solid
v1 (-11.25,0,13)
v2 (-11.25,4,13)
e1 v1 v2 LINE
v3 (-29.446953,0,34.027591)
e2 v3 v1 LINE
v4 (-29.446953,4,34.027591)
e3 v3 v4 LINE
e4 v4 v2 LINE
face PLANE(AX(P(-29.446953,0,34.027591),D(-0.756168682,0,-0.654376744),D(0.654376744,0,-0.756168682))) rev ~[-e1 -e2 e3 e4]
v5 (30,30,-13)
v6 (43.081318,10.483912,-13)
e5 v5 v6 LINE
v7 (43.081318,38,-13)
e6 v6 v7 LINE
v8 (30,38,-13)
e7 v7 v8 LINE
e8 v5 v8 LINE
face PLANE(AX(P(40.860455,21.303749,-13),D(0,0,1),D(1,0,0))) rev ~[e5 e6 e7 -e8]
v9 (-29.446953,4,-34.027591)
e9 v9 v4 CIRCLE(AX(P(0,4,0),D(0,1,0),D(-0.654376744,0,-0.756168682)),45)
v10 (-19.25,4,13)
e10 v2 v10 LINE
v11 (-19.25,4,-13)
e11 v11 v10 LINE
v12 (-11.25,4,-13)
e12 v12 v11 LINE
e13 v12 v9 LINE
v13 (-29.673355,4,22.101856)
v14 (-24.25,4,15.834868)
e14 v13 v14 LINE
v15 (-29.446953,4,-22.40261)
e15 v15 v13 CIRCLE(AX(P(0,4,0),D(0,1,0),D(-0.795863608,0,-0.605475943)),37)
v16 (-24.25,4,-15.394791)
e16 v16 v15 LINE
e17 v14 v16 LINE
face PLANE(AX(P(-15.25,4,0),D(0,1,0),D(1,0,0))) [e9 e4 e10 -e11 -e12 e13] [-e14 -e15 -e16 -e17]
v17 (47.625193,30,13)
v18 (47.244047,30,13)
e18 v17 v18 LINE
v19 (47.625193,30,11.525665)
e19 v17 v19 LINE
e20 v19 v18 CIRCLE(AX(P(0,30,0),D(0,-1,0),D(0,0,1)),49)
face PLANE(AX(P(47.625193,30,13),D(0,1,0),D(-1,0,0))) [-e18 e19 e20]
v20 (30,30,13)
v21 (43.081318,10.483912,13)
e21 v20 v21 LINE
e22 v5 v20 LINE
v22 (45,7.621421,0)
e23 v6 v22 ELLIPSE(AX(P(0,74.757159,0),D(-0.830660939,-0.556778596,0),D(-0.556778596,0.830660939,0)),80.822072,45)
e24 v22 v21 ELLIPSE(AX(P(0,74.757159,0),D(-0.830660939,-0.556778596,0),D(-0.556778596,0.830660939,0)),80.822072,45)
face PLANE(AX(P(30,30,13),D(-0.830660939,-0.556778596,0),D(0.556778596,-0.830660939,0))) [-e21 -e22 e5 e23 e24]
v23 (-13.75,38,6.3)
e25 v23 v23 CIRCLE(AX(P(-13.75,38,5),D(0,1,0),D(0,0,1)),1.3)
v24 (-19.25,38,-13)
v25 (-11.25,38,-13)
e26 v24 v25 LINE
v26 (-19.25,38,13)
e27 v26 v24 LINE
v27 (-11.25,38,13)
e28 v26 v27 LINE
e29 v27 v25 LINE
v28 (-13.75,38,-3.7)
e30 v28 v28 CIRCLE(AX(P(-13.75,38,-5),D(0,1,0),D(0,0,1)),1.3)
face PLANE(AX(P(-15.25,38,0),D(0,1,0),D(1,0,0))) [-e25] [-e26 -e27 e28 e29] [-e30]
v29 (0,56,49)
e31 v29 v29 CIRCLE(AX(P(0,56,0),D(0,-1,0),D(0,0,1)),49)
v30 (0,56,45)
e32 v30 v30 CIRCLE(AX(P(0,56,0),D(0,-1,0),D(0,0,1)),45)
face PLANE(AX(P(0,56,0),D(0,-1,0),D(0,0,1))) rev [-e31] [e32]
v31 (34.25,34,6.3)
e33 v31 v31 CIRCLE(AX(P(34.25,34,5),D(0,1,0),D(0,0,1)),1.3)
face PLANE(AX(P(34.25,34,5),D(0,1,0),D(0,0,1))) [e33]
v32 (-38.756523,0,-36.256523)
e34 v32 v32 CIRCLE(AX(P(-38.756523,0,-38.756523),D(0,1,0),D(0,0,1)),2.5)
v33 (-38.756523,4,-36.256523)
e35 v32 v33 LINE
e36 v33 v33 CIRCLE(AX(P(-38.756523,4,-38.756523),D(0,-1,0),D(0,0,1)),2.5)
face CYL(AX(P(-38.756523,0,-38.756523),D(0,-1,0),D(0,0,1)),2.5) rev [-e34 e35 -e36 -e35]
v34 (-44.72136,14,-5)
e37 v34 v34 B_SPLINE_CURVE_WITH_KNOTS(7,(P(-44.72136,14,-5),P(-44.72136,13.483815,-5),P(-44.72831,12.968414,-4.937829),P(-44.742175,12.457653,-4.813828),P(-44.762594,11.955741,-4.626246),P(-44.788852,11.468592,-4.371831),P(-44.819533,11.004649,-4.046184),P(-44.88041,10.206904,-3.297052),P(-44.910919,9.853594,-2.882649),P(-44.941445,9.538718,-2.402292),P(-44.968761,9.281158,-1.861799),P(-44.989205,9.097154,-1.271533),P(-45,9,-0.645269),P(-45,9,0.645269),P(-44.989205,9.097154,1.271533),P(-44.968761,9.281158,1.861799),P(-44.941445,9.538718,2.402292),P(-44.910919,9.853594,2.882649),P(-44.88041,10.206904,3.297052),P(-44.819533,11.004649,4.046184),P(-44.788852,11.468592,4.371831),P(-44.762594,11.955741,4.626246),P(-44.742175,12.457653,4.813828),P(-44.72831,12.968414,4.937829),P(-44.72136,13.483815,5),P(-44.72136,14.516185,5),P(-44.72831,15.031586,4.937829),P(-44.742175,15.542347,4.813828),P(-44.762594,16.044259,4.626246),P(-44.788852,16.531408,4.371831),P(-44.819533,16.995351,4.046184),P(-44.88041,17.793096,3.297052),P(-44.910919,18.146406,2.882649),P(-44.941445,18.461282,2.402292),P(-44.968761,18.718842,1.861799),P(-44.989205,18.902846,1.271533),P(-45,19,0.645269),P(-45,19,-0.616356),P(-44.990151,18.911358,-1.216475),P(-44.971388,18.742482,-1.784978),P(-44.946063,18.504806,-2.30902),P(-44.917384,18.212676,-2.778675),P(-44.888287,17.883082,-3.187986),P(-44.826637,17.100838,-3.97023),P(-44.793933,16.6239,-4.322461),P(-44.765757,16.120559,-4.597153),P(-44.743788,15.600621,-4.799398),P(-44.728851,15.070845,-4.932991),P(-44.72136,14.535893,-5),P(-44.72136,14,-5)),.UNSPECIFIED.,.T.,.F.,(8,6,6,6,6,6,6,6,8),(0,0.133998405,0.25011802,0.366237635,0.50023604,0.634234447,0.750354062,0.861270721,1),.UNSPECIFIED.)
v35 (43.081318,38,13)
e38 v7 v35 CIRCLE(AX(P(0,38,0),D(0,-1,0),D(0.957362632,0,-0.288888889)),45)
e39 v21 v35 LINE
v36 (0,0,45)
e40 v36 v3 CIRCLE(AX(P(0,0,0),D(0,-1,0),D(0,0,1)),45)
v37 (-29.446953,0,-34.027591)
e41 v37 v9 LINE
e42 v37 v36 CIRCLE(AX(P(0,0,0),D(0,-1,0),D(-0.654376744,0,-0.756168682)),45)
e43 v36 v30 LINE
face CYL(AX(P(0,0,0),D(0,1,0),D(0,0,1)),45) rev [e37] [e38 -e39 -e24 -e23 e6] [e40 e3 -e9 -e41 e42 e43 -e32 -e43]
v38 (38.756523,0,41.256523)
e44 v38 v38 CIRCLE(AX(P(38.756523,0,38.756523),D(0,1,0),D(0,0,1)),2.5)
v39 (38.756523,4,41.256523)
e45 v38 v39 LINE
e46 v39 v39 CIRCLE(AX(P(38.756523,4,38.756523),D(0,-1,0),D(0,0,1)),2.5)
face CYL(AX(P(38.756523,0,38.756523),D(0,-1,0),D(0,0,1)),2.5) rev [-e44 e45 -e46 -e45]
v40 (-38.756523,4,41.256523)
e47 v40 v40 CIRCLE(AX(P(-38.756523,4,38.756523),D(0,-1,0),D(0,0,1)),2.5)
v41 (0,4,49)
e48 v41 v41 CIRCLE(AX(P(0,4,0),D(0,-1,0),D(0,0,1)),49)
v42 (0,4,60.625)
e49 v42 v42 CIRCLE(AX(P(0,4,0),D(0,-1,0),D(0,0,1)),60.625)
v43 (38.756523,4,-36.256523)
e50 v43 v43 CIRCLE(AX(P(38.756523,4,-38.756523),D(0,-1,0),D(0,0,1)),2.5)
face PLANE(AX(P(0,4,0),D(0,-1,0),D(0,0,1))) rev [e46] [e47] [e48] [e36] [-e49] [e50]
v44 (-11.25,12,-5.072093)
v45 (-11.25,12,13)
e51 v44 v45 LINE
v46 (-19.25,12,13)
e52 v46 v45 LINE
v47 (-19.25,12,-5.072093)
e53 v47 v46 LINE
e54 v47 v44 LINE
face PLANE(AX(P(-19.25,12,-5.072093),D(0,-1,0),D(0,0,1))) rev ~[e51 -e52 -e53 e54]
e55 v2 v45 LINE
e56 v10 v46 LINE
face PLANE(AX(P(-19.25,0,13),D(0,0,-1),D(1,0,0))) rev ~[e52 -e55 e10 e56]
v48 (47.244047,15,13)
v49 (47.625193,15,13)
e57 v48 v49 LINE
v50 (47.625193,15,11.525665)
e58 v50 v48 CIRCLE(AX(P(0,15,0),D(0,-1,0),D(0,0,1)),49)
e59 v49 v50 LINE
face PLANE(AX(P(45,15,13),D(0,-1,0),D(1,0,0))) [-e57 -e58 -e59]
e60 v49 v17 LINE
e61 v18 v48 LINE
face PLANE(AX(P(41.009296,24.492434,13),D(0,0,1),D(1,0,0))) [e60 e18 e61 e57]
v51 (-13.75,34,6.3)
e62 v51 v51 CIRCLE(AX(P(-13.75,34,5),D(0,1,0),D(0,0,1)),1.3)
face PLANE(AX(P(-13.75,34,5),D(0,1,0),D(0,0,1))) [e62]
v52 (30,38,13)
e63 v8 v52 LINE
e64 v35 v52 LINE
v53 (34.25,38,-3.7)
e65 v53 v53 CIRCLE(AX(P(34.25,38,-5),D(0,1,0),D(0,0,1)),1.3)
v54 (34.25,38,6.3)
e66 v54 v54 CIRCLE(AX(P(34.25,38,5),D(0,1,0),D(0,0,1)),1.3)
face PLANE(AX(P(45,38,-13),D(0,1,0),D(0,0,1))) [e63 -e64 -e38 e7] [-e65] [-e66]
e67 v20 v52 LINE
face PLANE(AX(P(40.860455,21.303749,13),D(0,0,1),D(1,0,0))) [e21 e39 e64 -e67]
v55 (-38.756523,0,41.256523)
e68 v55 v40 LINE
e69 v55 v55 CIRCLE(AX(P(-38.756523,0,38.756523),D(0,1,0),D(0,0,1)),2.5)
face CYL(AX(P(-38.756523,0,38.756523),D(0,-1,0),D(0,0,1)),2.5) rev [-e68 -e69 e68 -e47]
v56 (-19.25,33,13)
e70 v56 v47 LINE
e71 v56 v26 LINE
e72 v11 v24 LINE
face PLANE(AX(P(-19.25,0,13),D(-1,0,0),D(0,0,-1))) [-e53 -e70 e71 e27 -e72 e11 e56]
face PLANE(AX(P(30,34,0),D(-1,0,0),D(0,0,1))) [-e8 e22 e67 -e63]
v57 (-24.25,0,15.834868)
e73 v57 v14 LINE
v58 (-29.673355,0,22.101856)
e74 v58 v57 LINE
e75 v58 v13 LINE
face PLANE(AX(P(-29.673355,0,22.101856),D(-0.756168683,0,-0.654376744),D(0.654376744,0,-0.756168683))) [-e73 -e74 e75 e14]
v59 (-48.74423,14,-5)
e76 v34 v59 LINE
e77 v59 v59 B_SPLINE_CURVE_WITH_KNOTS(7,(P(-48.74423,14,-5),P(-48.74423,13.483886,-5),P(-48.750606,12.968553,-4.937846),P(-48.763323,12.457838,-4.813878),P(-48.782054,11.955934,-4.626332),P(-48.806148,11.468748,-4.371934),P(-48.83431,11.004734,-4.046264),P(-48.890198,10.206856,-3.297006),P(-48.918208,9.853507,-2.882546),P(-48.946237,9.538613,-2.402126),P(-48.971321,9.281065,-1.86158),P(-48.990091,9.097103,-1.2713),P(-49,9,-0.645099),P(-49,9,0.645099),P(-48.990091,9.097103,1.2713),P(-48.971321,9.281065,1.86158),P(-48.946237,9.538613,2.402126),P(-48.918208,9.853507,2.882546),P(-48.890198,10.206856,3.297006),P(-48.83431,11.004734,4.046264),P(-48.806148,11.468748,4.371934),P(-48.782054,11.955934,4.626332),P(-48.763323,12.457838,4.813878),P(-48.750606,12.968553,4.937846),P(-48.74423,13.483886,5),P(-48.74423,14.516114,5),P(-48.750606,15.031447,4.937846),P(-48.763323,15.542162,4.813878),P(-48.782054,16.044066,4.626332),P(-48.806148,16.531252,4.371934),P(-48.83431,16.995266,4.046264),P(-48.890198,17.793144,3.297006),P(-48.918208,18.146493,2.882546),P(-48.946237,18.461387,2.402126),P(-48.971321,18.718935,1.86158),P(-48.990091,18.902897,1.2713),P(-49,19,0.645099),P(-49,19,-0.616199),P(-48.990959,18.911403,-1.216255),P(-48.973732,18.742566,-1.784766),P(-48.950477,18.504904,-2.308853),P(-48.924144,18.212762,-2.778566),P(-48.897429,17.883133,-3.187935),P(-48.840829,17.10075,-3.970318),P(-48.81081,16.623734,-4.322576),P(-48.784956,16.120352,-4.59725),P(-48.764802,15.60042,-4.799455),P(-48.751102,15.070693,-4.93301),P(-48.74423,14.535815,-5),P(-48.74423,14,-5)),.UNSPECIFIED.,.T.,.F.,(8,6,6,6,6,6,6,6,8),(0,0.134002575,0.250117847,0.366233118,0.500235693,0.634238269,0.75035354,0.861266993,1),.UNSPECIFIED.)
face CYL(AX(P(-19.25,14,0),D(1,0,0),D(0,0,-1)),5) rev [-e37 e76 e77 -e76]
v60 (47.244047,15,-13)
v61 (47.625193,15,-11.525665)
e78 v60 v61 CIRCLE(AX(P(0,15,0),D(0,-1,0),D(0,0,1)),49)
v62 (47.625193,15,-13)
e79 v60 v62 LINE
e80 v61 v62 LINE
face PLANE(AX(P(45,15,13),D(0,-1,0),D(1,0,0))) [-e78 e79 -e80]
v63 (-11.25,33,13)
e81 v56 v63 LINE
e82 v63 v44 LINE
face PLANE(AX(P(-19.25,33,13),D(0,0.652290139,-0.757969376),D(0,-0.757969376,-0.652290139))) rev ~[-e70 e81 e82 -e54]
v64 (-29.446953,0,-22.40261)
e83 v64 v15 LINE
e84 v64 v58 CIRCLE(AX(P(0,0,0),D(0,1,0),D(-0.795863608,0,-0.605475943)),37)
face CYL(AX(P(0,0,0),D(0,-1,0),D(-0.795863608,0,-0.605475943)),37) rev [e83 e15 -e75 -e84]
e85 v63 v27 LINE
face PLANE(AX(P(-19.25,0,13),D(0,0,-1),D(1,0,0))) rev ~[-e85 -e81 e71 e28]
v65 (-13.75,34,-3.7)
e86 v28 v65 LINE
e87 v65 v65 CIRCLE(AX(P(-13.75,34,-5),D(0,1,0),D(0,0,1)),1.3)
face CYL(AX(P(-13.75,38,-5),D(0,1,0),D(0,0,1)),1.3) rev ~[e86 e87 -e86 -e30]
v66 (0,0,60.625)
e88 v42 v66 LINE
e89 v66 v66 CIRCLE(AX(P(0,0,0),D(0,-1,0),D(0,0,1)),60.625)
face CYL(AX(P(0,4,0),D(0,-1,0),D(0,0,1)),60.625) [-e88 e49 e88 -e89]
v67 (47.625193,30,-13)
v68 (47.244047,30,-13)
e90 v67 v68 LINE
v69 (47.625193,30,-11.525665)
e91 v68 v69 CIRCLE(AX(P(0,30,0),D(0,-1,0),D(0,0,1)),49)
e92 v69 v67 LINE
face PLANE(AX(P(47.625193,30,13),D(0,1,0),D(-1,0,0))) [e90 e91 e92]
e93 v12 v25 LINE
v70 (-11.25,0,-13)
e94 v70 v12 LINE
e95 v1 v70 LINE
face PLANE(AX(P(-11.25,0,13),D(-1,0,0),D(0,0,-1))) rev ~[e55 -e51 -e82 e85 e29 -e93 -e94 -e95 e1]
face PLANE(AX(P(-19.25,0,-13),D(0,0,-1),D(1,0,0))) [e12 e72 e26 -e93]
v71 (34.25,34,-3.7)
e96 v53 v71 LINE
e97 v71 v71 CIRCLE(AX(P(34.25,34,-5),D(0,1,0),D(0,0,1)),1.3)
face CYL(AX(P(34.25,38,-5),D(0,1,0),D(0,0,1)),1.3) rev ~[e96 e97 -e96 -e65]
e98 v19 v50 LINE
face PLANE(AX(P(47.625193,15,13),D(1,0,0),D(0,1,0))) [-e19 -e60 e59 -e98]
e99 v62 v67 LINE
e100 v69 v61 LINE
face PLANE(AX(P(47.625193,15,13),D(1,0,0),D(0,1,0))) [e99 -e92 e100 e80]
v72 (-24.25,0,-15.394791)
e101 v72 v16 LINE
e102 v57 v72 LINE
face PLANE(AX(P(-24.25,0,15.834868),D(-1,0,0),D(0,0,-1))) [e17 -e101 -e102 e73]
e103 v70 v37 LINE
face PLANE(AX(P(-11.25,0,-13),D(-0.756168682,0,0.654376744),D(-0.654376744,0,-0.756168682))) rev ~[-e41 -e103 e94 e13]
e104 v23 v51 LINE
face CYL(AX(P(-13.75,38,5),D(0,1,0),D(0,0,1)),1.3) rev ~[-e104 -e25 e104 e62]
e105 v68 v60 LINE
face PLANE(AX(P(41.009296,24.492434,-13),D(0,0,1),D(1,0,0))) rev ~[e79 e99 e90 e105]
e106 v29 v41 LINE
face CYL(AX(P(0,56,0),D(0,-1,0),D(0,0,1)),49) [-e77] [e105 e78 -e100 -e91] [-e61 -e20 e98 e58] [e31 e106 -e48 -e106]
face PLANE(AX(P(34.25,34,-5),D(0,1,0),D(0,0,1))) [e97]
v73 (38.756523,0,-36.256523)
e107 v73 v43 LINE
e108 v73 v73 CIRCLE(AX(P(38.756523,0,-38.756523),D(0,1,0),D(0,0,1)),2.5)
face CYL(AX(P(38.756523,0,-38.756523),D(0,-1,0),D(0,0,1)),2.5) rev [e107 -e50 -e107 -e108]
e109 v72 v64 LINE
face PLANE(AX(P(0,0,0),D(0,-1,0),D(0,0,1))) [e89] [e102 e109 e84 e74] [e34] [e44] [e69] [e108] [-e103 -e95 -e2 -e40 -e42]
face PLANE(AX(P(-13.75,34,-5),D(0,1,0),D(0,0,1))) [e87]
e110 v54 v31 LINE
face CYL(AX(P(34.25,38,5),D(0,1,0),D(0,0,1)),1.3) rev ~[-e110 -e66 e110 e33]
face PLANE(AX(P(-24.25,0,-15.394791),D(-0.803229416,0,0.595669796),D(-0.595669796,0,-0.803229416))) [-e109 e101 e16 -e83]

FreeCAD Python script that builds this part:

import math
import FreeCAD as App
import Part
import Sketcher
Q = App.Units.Quantity

doc = App.newDocument("Part")
params = doc.addObject("Spreadsheet::Sheet", "Params")
for row, (alias, value) in enumerate([
    ("sketch1_width", "4 mm"),
    ("sketch1_height", "52 mm"),
    ("revolution_angle", "360 deg"),
    ("sketch2_width", "8 mm"),
    ("sketch2_height", "26 mm"),
    ("pad1_length", "15 mm"),
    ("sketch3_radius", "45 mm"),
    ("sketch3_radius2", "37 mm"),
    ("sketch3_height", "26 mm"),
    ("pad2_length", "4 mm"),
    ("sketch4_width", "8 mm"),
    ("sketch4_height", "26 mm"),
    ("pad3_length", "38 mm"),
    ("sketch5_diameter", "10 mm"),
    ("pocket1_length", "44 mm"),
    ("sketch6_diameter", "5 mm"),
    ("pocket2_length", "44 mm"),
    ("sketch7_diameter", "2.6 mm"),
    ("pocket3_length", "4 mm"),
    ("pocket4_length", "10 mm"),
    ("pad4_length", "26 mm"),
    ("sketch10_radius", "45 mm"),
    ("pocket5_length", "30 mm"),
    ("sketch11_height", "15 mm"),
    ("pad5_length", "26 mm"),
    ("pad6_length", "26 mm"),
    ("sketch13_width", "21 mm"),
    ("pocket6_length", "26 mm"),
], start=1):
    params.set(f"A{row}", alias)
    params.set(f"B{row}", "=" + value)
    params.setAlias(f"B{row}", alias)

body = doc.addObject("PartDesign::Body", "Body")

# Sketch on XY plane
sketch1 = doc.addObject("Sketcher::SketchObject", "Sketch")
body.addObject(sketch1)
sketch1.AttachmentSupport = (doc.XY_Plane, [""])
sketch1.MapMode = "FlatFace"
sketch1.addGeometry(Part.LineSegment(App.Vector(60.6, 4, 0), App.Vector(49, 4, 0)), False)
sketch1.addGeometry(Part.LineSegment(App.Vector(49, 4, 0), App.Vector(49, 56, 0)), False)
sketch1.addGeometry(Part.LineSegment(App.Vector(49, 56, 0), App.Vector(45, 56, 0)), False)
sketch1.addGeometry(Part.LineSegment(App.Vector(45, 56, 0), App.Vector(45, 0, 0)), False)
sketch1.addGeometry(Part.LineSegment(App.Vector(45, 0, 0), App.Vector(60.6, 0, 0)), False)
sketch1.addGeometry(Part.LineSegment(App.Vector(60.6, 0, 0), App.Vector(60.6, 4, 0)), False)
sketch1.addConstraint(Sketcher.Constraint("Coincident", 0, 2, 1, 1))
sketch1.addConstraint(Sketcher.Constraint("Coincident", 1, 2, 2, 1))
sketch1.addConstraint(Sketcher.Constraint("Coincident", 2, 2, 3, 1))
sketch1.addConstraint(Sketcher.Constraint("Coincident", 3, 2, 4, 1))
sketch1.addConstraint(Sketcher.Constraint("Coincident", 4, 2, 5, 1))
sketch1.addConstraint(Sketcher.Constraint("Coincident", 5, 2, 0, 1))
sketch1.addConstraint(Sketcher.Constraint("Horizontal", 0))
sketch1.addConstraint(Sketcher.Constraint("Vertical", 1))
sketch1.addConstraint(Sketcher.Constraint("Horizontal", 2))
sketch1.addConstraint(Sketcher.Constraint("Vertical", 3))
sketch1.addConstraint(Sketcher.Constraint("Horizontal", 4))
sketch1.addConstraint(Sketcher.Constraint("Vertical", 5))
sketch1.addConstraint(Sketcher.Constraint("PointOnObject", 3, 2, -1))
sketch1.addConstraint(Sketcher.Constraint("Equal", 2, 5))
sketch1.addConstraint(Sketcher.Constraint("DistanceX", 2, 2, 2, 1, Q("4 mm")))
sketch1.addConstraint(Sketcher.Constraint("DistanceY", 1, 1, 1, 2, Q("52 mm")))
sketch1.addConstraint(Sketcher.Constraint("DistanceX", -1, 1, 0, 2, Q("49 mm")))
sketch1.addConstraint(Sketcher.Constraint("DistanceX", 0, 2, 0, 1, Q("11.625 mm")))
sketch1.setExpression("Constraints[14]", "Params.sketch1_width")
sketch1.setExpression("Constraints[15]", "Params.sketch1_height")
revolution = doc.addObject("PartDesign::Revolution", "Revolution")
body.addObject(revolution)
revolution.Profile = sketch1
revolution.ReferenceAxis = (sketch1, ["V_Axis"])
revolution.setExpression("Angle", "Params.revolution_angle")

# Sketch on YZ plane
sketch2 = doc.addObject("Sketcher::SketchObject", "Sketch001")
body.addObject(sketch2)
sketch2.AttachmentSupport = (doc.YZ_Plane, [""])
sketch2.MapMode = "FlatFace"
sketch2.AttachmentOffset = App.Placement(App.Vector(0, 0, 45), App.Rotation())
sketch2.addGeometry(Part.LineSegment(App.Vector(38, -13, 0), App.Vector(30, -13, 0)), False)
sketch2.addGeometry(Part.LineSegment(App.Vector(30, -13, 0), App.Vector(30, 13, 0)), False)
sketch2.addGeometry(Part.LineSegment(App.Vector(30, 13, 0), App.Vector(38, 13, 0)), False)
sketch2.addGeometry(Part.LineSegment(App.Vector(38, 13, 0), App.Vector(38, -13, 0)), False)
sketch2.addConstraint(Sketcher.Constraint("Coincident", 0, 2, 1, 1))
sketch2.addConstraint(Sketcher.Constraint("Coincident", 1, 2, 2, 1))
sketch2.addConstraint(Sketcher.Constraint("Coincident", 2, 2, 3, 1))
sketch2.addConstraint(Sketcher.Constraint("Coincident", 3, 2, 0, 1))
sketch2.addConstraint(Sketcher.Constraint("Horizontal", 0))
sketch2.addConstraint(Sketcher.Constraint("Vertical", 1))
sketch2.addConstraint(Sketcher.Constraint("Horizontal", 2))
sketch2.addConstraint(Sketcher.Constraint("Vertical", 3))
sketch2.addConstraint(Sketcher.Constraint("DistanceX", 0, 2, 0, 1, Q("8 mm")))
sketch2.addConstraint(Sketcher.Constraint("DistanceY", 1, 1, 1, 2, Q("26 mm")))
sketch2.addConstraint(Sketcher.Constraint("DistanceX", -1, 1, 0, 2, Q("30 mm")))
sketch2.addConstraint(Sketcher.Constraint("DistanceY", 0, 2, -1, 1, Q("13 mm")))
sketch2.setExpression("Constraints[8]", "Params.sketch2_width")
sketch2.setExpression("Constraints[9]", "Params.sketch2_height")
pad1 = doc.addObject("PartDesign::Pad", "Pad")
body.addObject(pad1)
pad1.Profile = sketch2
pad1.setExpression("Length", "Params.pad1_length")
pad1.Reversed = True

# Sketch on XZ plane
sketch3 = doc.addObject("Sketcher::SketchObject", "Sketch002")
body.addObject(sketch3)
sketch3.AttachmentSupport = (doc.XZ_Plane, [""])
sketch3.MapMode = "FlatFace"
sketch3.addGeometry(Part.LineSegment(App.Vector(-11, 13, 0), App.Vector(-11, -13, 0)), False)
sketch3.addGeometry(Part.LineSegment(App.Vector(-11, -13, 0), App.Vector(-29, -34, 0)), False)
sketch3.addGeometry(Part.ArcOfCircle(Part.Circle(App.Vector(0, 0, 0), App.Vector(0, 0, 1), 45), math.radians(131), math.radians(229)), False)
sketch3.addGeometry(Part.LineSegment(App.Vector(-29, 34, 0), App.Vector(-11, 13, 0)), False)
sketch3.addGeometry(Part.ArcOfCircle(Part.Circle(App.Vector(0, 0, 0), App.Vector(0, 0, 1), 37), math.radians(143), math.radians(217)), False)
sketch3.addGeometry(Part.LineSegment(App.Vector(-29, -22, 0), App.Vector(-24, -15, 0)), False)
sketch3.addGeometry(Part.LineSegment(App.Vector(-24, -15, 0), App.Vector(-24, 16, 0)), False)
sketch3.addGeometry(Part.LineSegment(App.Vector(-24, 16, 0), App.Vector(-30, 22, 0)), False)
sketch3.addConstraint(Sketcher.Constraint("Coincident", 0, 2, 1, 1))
sketch3.addConstraint(Sketcher.Constraint("Coincident", 1, 2, 2, 2))
sketch3.addConstraint(Sketcher.Constraint("Coincident", 2, 1, 3, 1))
sketch3.addConstraint(Sketcher.Constraint("Coincident", 3, 2, 0, 1))
sketch3.addConstraint(Sketcher.Constraint("Coincident", 4, 2, 5, 1))
sketch3.addConstraint(Sketcher.Constraint("Coincident", 5, 2, 6, 1))
sketch3.addConstraint(Sketcher.Constraint("Coincident", 6, 2, 7, 1))
sketch3.addConstraint(Sketcher.Constraint("Coincident", 7, 2, 4, 1))
sketch3.addConstraint(Sketcher.Constraint("Vertical", 0))
sketch3.addConstraint(Sketcher.Constraint("Vertical", 6))
sketch3.addConstraint(Sketcher.Constraint("Coincident", 2, 3, -1, 1))
sketch3.addConstraint(Sketcher.Constraint("Coincident", 4, 3, -1, 1))
sketch3.addConstraint(Sketcher.Constraint("Parallel", 3, 7))
sketch3.addConstraint(Sketcher.Constraint("Vertical", 1, 2, 2, 1))
sketch3.addConstraint(Sketcher.Constraint("Vertical", 2, 1, 4, 2))
sketch3.addConstraint(Sketcher.Constraint("Equal", 1, 3))
sketch3.addConstraint(Sketcher.Constraint("Radius", 2, Q("45 mm")))
sketch3.addConstraint(Sketcher.Constraint("Radius", 4, Q("37 mm")))
sketch3.addConstraint(Sketcher.Constraint("DistanceY", 0, 2, 0, 1, Q("26 mm")))
sketch3.addConstraint(Sketcher.Constraint("DistanceX", 5, 2, 0, 2, Q("13 mm")))
sketch3.addConstraint(Sketcher.Constraint("DistanceX", 0, 2, -1, 1, Q("11.25 mm")))
sketch3.addConstraint(Sketcher.Constraint("DistanceY", 6, 1, 6, 2, Q("31.22966 mm")))
sketch3.addConstraint(Sketcher.Constraint("DistanceY", 1, 2, 5, 2, Q("18.6328 mm")))
sketch3.addConstraint(Sketcher.Constraint("DistanceX", 7, 2, 2, 1, Q("0.226401 mm")))
sketch3.setExpression("Constraints[16]", "Params.sketch3_radius")
sketch3.setExpression("Constraints[17]", "Params.sketch3_radius2")
sketch3.setExpression("Constraints[18]", "Params.sketch3_height")
pad2 = doc.addObject("PartDesign::Pad", "Pad001")
body.addObject(pad2)
pad2.Profile = sketch3
pad2.setExpression("Length", "Params.pad2_length")
pad2.Reversed = True

# Sketch on XZ plane
sketch4 = doc.addObject("Sketcher::SketchObject", "Sketch003")
body.addObject(sketch4)
sketch4.AttachmentSupport = (doc.XZ_Plane, [""])
sketch4.MapMode = "FlatFace"
sketch4.addGeometry(Part.LineSegment(App.Vector(-19, -13, 0), App.Vector(-19, 13, 0)), False)
sketch4.addGeometry(Part.LineSegment(App.Vector(-19, 13, 0), App.Vector(-11, 13, 0)), False)
sketch4.addGeometry(Part.LineSegment(App.Vector(-11, 13, 0), App.Vector(-11, -13, 0)), False)
sketch4.addGeometry(Part.LineSegment(App.Vector(-11, -13, 0), App.Vector(-19, -13, 0)), False)
sketch4.addConstraint(Sketcher.Constraint("Coincident", 0, 2, 1, 1))
sketch4.addConstraint(Sketcher.Constraint("Coincident", 1, 2, 2, 1))
sketch4.addConstraint(Sketcher.Constraint("Coincident", 2, 2, 3, 1))
sketch4.addConstraint(Sketcher.Constraint("Coincident", 3, 2, 0, 1))
sketch4.addConstraint(Sketcher.Constraint("Vertical", 0))
sketch4.addConstraint(Sketcher.Constraint("Horizontal", 1))
sketch4.addConstraint(Sketcher.Constraint("Vertical", 2))
sketch4.addConstraint(Sketcher.Constraint("Horizontal", 3))
sketch4.addConstraint(Sketcher.Constraint("DistanceX", 1, 1, 1, 2, Q("8 mm")))
sketch4.addConstraint(Sketcher.Constraint("DistanceY", 0, 1, 0, 2, Q("26 mm")))
sketch4.addConstraint(Sketcher.Constraint("DistanceY", -1, 1, 0, 2, Q("13 mm")))
sketch4.addConstraint(Sketcher.Constraint("DistanceX", 0, 2, -1, 1, Q("19.25 mm")))
sketch4.setExpression("Constraints[8]", "Params.sketch4_width")
sketch4.setExpression("Constraints[9]", "Params.sketch4_height")
pad3 = doc.addObject("PartDesign::Pad", "Pad002")
body.addObject(pad3)
pad3.Profile = sketch4
pad3.setExpression("Length", "Params.pad3_length")
pad3.Reversed = True

# Sketch on YZ plane
sketch5 = doc.addObject("Sketcher::SketchObject", "Sketch004")
body.addObject(sketch5)
sketch5.AttachmentSupport = (doc.YZ_Plane, [""])
sketch5.MapMode = "FlatFace"
sketch5.AttachmentOffset = App.Placement(App.Vector(0, 0, -19.25), App.Rotation())
sketch5.addGeometry(Part.Circle(App.Vector(14, 0, 0), App.Vector(0, 0, 1), 5), False)
sketch5.addConstraint(Sketcher.Constraint("PointOnObject", 0, 3, -1))
sketch5.addConstraint(Sketcher.Constraint("Diameter", 0, Q("10 mm")))
sketch5.addConstraint(Sketcher.Constraint("DistanceX", -1, 1, 0, 3, Q("14 mm")))
sketch5.setExpression("Constraints[1]", "Params.sketch5_diameter")
pocket1 = doc.addObject("PartDesign::Pocket", "Pocket")
body.addObject(pocket1)
pocket1.Profile = sketch5
pocket1.setExpression("Length", "Params.pocket1_length")

# Sketch on XZ plane
sketch6 = doc.addObject("Sketcher::SketchObject", "Sketch005")
body.addObject(sketch6)
sketch6.AttachmentSupport = (doc.XZ_Plane, [""])
sketch6.MapMode = "FlatFace"
sketch6.addGeometry(Part.Circle(App.Vector(-38.8, -38.8, 0), App.Vector(0, 0, 1), 2.5), False)
sketch6.addGeometry(Part.Circle(App.Vector(38.8, -38.8, 0), App.Vector(0, 0, 1), 2.5), False)
sketch6.addGeometry(Part.Circle(App.Vector(-38.8, 38.8, 0), App.Vector(0, 0, 1), 2.5), False)
sketch6.addGeometry(Part.Circle(App.Vector(38.8, 38.8, 0), App.Vector(0, 0, 1), 2.5), False)
sketch6.addConstraint(Sketcher.Constraint("Equal", 0, 1))
sketch6.addConstraint(Sketcher.Constraint("Equal", 1, 2))
sketch6.addConstraint(Sketcher.Constraint("Equal", 2, 3))
sketch6.addConstraint(Sketcher.Constraint("Symmetric", 1, 3, 2, 3, -1, 1))
sketch6.addConstraint(Sketcher.Constraint("Symmetric", 0, 3, 3, 3, -1, 1))
sketch6.addConstraint(Sketcher.Constraint("Symmetric", 0, 3, 1, 3, -2))
sketch6.addConstraint(Sketcher.Constraint("Diameter", 0, Q("5 mm")))
sketch6.addConstraint(Sketcher.Constraint("DistanceX", 0, 3, -1, 1, Q("38.756523 mm")))
sketch6.addConstraint(Sketcher.Constraint("DistanceY", 0, 3, -1, 1, Q("38.756523 mm")))
sketch6.setExpression("Constraints[6]", "Params.sketch6_diameter")
pocket2 = doc.addObject("PartDesign::Pocket", "Pocket001")
body.addObject(pocket2)
pocket2.Profile = sketch6
pocket2.setExpression("Length", "Params.pocket2_length")

# Sketch on XZ plane
sketch7 = doc.addObject("Sketcher::SketchObject", "Sketch006")
body.addObject(sketch7)
sketch7.AttachmentSupport = (doc.XZ_Plane, [""])
sketch7.MapMode = "FlatFace"
sketch7.AttachmentOffset = App.Placement(App.Vector(0, 0, -38), App.Rotation())
sketch7.addGeometry(Part.Circle(App.Vector(-13.8, -5, 0), App.Vector(0, 0, 1), 1.3), False)
sketch7.addGeometry(Part.Circle(App.Vector(-13.8, 5, 0), App.Vector(0, 0, 1), 1.3), False)
sketch7.addGeometry(Part.Circle(App.Vector(34.2, 5, 0), App.Vector(0, 0, 1), 1.3), False)
sketch7.addGeometry(Part.Circle(App.Vector(34.2, -5, 0), App.Vector(0, 0, 1), 1.3), False)
sketch7.addConstraint(Sketcher.Constraint("Equal", 0, 1))
sketch7.addConstraint(Sketcher.Constraint("Equal", 1, 2))
sketch7.addConstraint(Sketcher.Constraint("Equal", 2, 3))
sketch7.addConstraint(Sketcher.Constraint("Symmetric", 0, 3, 1, 3, -1))
sketch7.addConstraint(Sketcher.Constraint("Symmetric", 2, 3, 3, 3, -1))
sketch7.addConstraint(Sketcher.Constraint("Horizontal", 1, 3, 2, 3))
sketch7.addConstraint(Sketcher.Constraint("Diameter", 0, Q("2.6 mm")))
sketch7.addConstraint(Sketcher.Constraint("DistanceY", 0, 3, -1, 1, Q("5 mm")))
sketch7.addConstraint(Sketcher.Constraint("DistanceX", 1, 3, 2, 3, Q("48 mm")))
sketch7.addConstraint(Sketcher.Constraint("DistanceX", 0, 3, -1, 1, Q("13.75 mm")))
sketch7.setExpression("Constraints[6]", "Params.sketch7_diameter")
pocket3 = doc.addObject("PartDesign::Pocket", "Pocket002")
body.addObject(pocket3)
pocket3.Profile = sketch7
pocket3.setExpression("Length", "Params.pocket3_length")
pocket3.Reversed = True

# Sketch on YZ plane
sketch8 = doc.addObject("Sketcher::SketchObject", "Sketch007")
body.addObject(sketch8)
sketch8.AttachmentSupport = (doc.YZ_Plane, [""])
sketch8.MapMode = "FlatFace"
sketch8.AttachmentOffset = App.Placement(App.Vector(0, 0, -19.25), App.Rotation())
sketch8.addGeometry(Part.LineSegment(App.Vector(30, 13, 0), App.Vector(12, -5, 0)), False)
sketch8.addGeometry(Part.LineSegment(App.Vector(12, -5, 0), App.Vector(12, 13, 0)), False)
sketch8.addGeometry(Part.LineSegment(App.Vector(12, 13, 0), App.Vector(30, 13, 0)), False)
sketch8.addConstraint(Sketcher.Constraint("Coincident", 0, 2, 1, 1))
sketch8.addConstraint(Sketcher.Constraint("Coincident", 1, 2, 2, 1))
sketch8.addConstraint(Sketcher.Constraint("Coincident", 2, 2, 0, 1))
sketch8.addConstraint(Sketcher.Constraint("Vertical", 1))
sketch8.addConstraint(Sketcher.Constraint("Horizontal", 2))
sketch8.addConstraint(Sketcher.Constraint("Equal", 2, 1))
sketch8.addConstraint(Sketcher.Constraint("DistanceX", -1, 1, 0, 2, Q("12 mm")))
sketch8.addConstraint(Sketcher.Constraint("DistanceY", -1, 1, 1, 2, Q("13 mm")))
sketch8.addConstraint(Sketcher.Constraint("Distance", 0, Q("25.557799 mm")))
pocket4 = doc.addObject("PartDesign::Pocket", "Pocket003")
body.addObject(pocket4)
pocket4.Profile = sketch8
pocket4.setExpression("Length", "Params.pocket4_length")
pocket4.Reversed = True

# Sketch on XY plane
sketch9 = doc.addObject("Sketcher::SketchObject", "Sketch008")
body.addObject(sketch9)
sketch9.AttachmentSupport = (doc.XY_Plane, [""])
sketch9.MapMode = "FlatFace"
sketch9.AttachmentOffset = App.Placement(App.Vector(0, 0, 13), App.Rotation())
sketch9.addGeometry(Part.LineSegment(App.Vector(30, 30, 0), App.Vector(45, 15, 0)), False)
sketch9.addGeometry(Part.LineSegment(App.Vector(45, 15, 0), App.Vector(45, 30, 0)), False)
sketch9.addGeometry(Part.LineSegment(App.Vector(45, 30, 0), App.Vector(30, 30, 0)), False)
sketch9.addConstraint(Sketcher.Constraint("Coincident", 0, 2, 1, 1))
sketch9.addConstraint(Sketcher.Constraint("Coincident", 1, 2, 2, 1))
sketch9.addConstraint(Sketcher.Constraint("Coincident", 2, 2, 0, 1))
sketch9.addConstraint(Sketcher.Constraint("Vertical", 1))
sketch9.addConstraint(Sketcher.Constraint("Horizontal", 2))
sketch9.addConstraint(Sketcher.Constraint("Equal", 2, 1))
sketch9.addConstraint(Sketcher.Constraint("DistanceY", -1, 1, 1, 2, Q("30 mm")))
sketch9.addConstraint(Sketcher.Constraint("DistanceX", -1, 1, 2, 2, Q("30 mm")))
sketch9.addConstraint(Sketcher.Constraint("Distance", 0, Q("21.792828 mm")))
pad4 = doc.addObject("PartDesign::Pad", "Pad003")
body.addObject(pad4)
pad4.Profile = sketch9
pad4.setExpression("Length", "Params.pad4_length")
pad4.Reversed = True

# Sketch on XZ plane
sketch10 = doc.addObject("Sketcher::SketchObject", "Sketch009")
body.addObject(sketch10)
sketch10.AttachmentSupport = (doc.XZ_Plane, [""])
sketch10.MapMode = "FlatFace"
sketch10.addGeometry(Part.LineSegment(App.Vector(0, -45, 0), App.Vector(0, 45, 0)), False)
sketch10.addGeometry(Part.ArcOfCircle(Part.Circle(App.Vector(0, 0, 0), App.Vector(0, 0, 1), 45), math.radians(-90), math.radians(90)), False)
sketch10.addConstraint(Sketcher.Constraint("Coincident", 0, 1, 1, 1))
sketch10.addConstraint(Sketcher.Constraint("Coincident", 1, 2, 0, 2))
sketch10.addConstraint(Sketcher.Constraint("Vertical", 0))
sketch10.addConstraint(Sketcher.Constraint("Coincident", 1, 3, -1, 1))
sketch10.addConstraint(Sketcher.Constraint("PointOnObject", 0, 1, -2))
sketch10.addConstraint(Sketcher.Constraint("Radius", 1, Q("45 mm")))
sketch10.setExpression("Constraints[5]", "Params.sketch10_radius")
pocket5 = doc.addObject("PartDesign::Pocket", "Pocket004")
body.addObject(pocket5)
pocket5.Profile = sketch10
pocket5.setExpression("Length", "Params.pocket5_length")

# Sketch on XY plane
sketch11 = doc.addObject("Sketcher::SketchObject", "Sketch010")
body.addObject(sketch11)
sketch11.AttachmentSupport = (doc.XY_Plane, [""])
sketch11.MapMode = "FlatFace"
sketch11.AttachmentOffset = App.Placement(App.Vector(0, 0, 13), App.Rotation())
sketch11.addGeometry(Part.LineSegment(App.Vector(30, 30, 0), App.Vector(45, 15, 0)), False)
sketch11.addGeometry(Part.LineSegment(App.Vector(45, 15, 0), App.Vector(47.6, 15, 0)), False)
sketch11.addGeometry(Part.LineSegment(App.Vector(47.6, 15, 0), App.Vector(47.6, 30, 0)), False)
sketch11.addGeometry(Part.LineSegment(App.Vector(47.6, 30, 0), App.Vector(30, 30, 0)), False)
sketch11.addConstraint(Sketcher.Constraint("Coincident", 0, 2, 1, 1))
sketch11.addConstraint(Sketcher.Constraint("Coincident", 1, 2, 2, 1))
sketch11.addConstraint(Sketcher.Constraint("Coincident", 2, 2, 3, 1))
sketch11.addConstraint(Sketcher.Constraint("Coincident", 3, 2, 0, 1))
sketch11.addConstraint(Sketcher.Constraint("Horizontal", 1))
sketch11.addConstraint(Sketcher.Constraint("Vertical", 2))
sketch11.addConstraint(Sketcher.Constraint("Horizontal", 3))
sketch11.addConstraint(Sketcher.Constraint("DistanceY", 2, 1, 2, 2, Q("15 mm")))
sketch11.addConstraint(Sketcher.Constraint("Angle", 0, Q("-45 deg")))
sketch11.addConstraint(Sketcher.Constraint("DistanceX", -1, 1, 0, 2, Q("45 mm")))
sketch11.addConstraint(Sketcher.Constraint("DistanceY", -1, 1, 0, 2, Q("15 mm")))
sketch11.addConstraint(Sketcher.Constraint("DistanceX", 1, 1, 1, 2, Q("2.625193 mm")))
sketch11.setExpression("Constraints[7]", "Params.sketch11_height")
pad5 = doc.addObject("PartDesign::Pad", "Pad004")
body.addObject(pad5)
pad5.Profile = sketch11
pad5.setExpression("Length", "Params.pad5_length")
pad5.Reversed = True

# Sketch on XY plane
sketch12 = doc.addObject("Sketcher::SketchObject", "Sketch011")
body.addObject(sketch12)
sketch12.AttachmentSupport = (doc.XY_Plane, [""])
sketch12.MapMode = "FlatFace"
sketch12.AttachmentOffset = App.Placement(App.Vector(0, 0, 13), App.Rotation())
sketch12.addGeometry(Part.LineSegment(App.Vector(30, 30, 0), App.Vector(45, 7.6, 0)), False)
sketch12.addGeometry(Part.LineSegment(App.Vector(45, 7.6, 0), App.Vector(46.5, 7.6, 0)), False)
sketch12.addGeometry(Part.LineSegment(App.Vector(46.5, 7.6, 0), App.Vector(46.5, 30, 0)), False)
sketch12.addGeometry(Part.LineSegment(App.Vector(46.5, 30, 0), App.Vector(30, 30, 0)), False)
sketch12.addConstraint(Sketcher.Constraint("Coincident", 0, 2, 1, 1))
sketch12.addConstraint(Sketcher.Constraint("Coincident", 1, 2, 2, 1))
sketch12.addConstraint(Sketcher.Constraint("Coincident", 2, 2, 3, 1))
sketch12.addConstraint(Sketcher.Constraint("Coincident", 3, 2, 0, 1))
sketch12.addConstraint(Sketcher.Constraint("Horizontal", 1))
sketch12.addConstraint(Sketcher.Constraint("Vertical", 2))
sketch12.addConstraint(Sketcher.Constraint("Horizontal", 3))
sketch12.addConstraint(Sketcher.Constraint("DistanceX", -1, 1, 0, 2, Q("45 mm")))
sketch12.addConstraint(Sketcher.Constraint("DistanceY", -1, 1, 2, 2, Q("30 mm")))
sketch12.addConstraint(Sketcher.Constraint("DistanceX", -1, 1, 3, 2, Q("30 mm")))
sketch12.addConstraint(Sketcher.Constraint("DistanceY", 2, 1, 2, 2, Q("22.378579 mm")))
sketch12.addConstraint(Sketcher.Constraint("DistanceX", 1, 1, 1, 2, Q("1.501965 mm")))
pad6 = doc.addObject("PartDesign::Pad", "Pad005")
body.addObject(pad6)
pad6.Profile = sketch12
pad6.setExpression("Length", "Params.pad6_length")
pad6.Reversed = True

# Sketch on YZ plane
sketch13 = doc.addObject("Sketcher::SketchObject", "Sketch012")
body.addObject(sketch13)
sketch13.AttachmentSupport = (doc.YZ_Plane, [""])
sketch13.MapMode = "FlatFace"
sketch13.AttachmentOffset = App.Placement(App.Vector(0, 0, -19.25), App.Rotation())
sketch13.addGeometry(Part.LineSegment(App.Vector(33, 13, 0), App.Vector(12, -5, 0)), False)
sketch13.addGeometry(Part.LineSegment(App.Vector(12, -5, 0), App.Vector(12, 13, 0)), False)
sketch13.addGeometry(Part.LineSegment(App.Vector(12, 13, 0), App.Vector(33, 13, 0)), False)
sketch13.addConstraint(Sketcher.Constraint("Coincident", 0, 2, 1, 1))
sketch13.addConstraint(Sketcher.Constraint("Coincident", 1, 2, 2, 1))
sketch13.addConstraint(Sketcher.Constraint("Coincident", 2, 2, 0, 1))
sketch13.addConstraint(Sketcher.Constraint("Vertical", 1))
sketch13.addConstraint(Sketcher.Constraint("Horizontal", 2))
sketch13.addConstraint(Sketcher.Constraint("DistanceX", 2, 1, 2, 2, Q("21 mm")))
sketch13.addConstraint(Sketcher.Constraint("DistanceX", -1, 1, 0, 2, Q("12 mm")))
sketch13.addConstraint(Sketcher.Constraint("DistanceY", -1, 1, 1, 2, Q("13 mm")))
sketch13.addConstraint(Sketcher.Constraint("DistanceY", 1, 1, 1, 2, Q("18.072093 mm")))
sketch13.setExpression("Constraints[5]", "Params.sketch13_width")
pocket6 = doc.addObject("PartDesign::Pocket", "Pocket005")
body.addObject(pocket6)
pocket6.Profile = sketch13
pocket6.setExpression("Length", "Params.pocket6_length")
pocket6.Reversed = True

doc.recompute()
